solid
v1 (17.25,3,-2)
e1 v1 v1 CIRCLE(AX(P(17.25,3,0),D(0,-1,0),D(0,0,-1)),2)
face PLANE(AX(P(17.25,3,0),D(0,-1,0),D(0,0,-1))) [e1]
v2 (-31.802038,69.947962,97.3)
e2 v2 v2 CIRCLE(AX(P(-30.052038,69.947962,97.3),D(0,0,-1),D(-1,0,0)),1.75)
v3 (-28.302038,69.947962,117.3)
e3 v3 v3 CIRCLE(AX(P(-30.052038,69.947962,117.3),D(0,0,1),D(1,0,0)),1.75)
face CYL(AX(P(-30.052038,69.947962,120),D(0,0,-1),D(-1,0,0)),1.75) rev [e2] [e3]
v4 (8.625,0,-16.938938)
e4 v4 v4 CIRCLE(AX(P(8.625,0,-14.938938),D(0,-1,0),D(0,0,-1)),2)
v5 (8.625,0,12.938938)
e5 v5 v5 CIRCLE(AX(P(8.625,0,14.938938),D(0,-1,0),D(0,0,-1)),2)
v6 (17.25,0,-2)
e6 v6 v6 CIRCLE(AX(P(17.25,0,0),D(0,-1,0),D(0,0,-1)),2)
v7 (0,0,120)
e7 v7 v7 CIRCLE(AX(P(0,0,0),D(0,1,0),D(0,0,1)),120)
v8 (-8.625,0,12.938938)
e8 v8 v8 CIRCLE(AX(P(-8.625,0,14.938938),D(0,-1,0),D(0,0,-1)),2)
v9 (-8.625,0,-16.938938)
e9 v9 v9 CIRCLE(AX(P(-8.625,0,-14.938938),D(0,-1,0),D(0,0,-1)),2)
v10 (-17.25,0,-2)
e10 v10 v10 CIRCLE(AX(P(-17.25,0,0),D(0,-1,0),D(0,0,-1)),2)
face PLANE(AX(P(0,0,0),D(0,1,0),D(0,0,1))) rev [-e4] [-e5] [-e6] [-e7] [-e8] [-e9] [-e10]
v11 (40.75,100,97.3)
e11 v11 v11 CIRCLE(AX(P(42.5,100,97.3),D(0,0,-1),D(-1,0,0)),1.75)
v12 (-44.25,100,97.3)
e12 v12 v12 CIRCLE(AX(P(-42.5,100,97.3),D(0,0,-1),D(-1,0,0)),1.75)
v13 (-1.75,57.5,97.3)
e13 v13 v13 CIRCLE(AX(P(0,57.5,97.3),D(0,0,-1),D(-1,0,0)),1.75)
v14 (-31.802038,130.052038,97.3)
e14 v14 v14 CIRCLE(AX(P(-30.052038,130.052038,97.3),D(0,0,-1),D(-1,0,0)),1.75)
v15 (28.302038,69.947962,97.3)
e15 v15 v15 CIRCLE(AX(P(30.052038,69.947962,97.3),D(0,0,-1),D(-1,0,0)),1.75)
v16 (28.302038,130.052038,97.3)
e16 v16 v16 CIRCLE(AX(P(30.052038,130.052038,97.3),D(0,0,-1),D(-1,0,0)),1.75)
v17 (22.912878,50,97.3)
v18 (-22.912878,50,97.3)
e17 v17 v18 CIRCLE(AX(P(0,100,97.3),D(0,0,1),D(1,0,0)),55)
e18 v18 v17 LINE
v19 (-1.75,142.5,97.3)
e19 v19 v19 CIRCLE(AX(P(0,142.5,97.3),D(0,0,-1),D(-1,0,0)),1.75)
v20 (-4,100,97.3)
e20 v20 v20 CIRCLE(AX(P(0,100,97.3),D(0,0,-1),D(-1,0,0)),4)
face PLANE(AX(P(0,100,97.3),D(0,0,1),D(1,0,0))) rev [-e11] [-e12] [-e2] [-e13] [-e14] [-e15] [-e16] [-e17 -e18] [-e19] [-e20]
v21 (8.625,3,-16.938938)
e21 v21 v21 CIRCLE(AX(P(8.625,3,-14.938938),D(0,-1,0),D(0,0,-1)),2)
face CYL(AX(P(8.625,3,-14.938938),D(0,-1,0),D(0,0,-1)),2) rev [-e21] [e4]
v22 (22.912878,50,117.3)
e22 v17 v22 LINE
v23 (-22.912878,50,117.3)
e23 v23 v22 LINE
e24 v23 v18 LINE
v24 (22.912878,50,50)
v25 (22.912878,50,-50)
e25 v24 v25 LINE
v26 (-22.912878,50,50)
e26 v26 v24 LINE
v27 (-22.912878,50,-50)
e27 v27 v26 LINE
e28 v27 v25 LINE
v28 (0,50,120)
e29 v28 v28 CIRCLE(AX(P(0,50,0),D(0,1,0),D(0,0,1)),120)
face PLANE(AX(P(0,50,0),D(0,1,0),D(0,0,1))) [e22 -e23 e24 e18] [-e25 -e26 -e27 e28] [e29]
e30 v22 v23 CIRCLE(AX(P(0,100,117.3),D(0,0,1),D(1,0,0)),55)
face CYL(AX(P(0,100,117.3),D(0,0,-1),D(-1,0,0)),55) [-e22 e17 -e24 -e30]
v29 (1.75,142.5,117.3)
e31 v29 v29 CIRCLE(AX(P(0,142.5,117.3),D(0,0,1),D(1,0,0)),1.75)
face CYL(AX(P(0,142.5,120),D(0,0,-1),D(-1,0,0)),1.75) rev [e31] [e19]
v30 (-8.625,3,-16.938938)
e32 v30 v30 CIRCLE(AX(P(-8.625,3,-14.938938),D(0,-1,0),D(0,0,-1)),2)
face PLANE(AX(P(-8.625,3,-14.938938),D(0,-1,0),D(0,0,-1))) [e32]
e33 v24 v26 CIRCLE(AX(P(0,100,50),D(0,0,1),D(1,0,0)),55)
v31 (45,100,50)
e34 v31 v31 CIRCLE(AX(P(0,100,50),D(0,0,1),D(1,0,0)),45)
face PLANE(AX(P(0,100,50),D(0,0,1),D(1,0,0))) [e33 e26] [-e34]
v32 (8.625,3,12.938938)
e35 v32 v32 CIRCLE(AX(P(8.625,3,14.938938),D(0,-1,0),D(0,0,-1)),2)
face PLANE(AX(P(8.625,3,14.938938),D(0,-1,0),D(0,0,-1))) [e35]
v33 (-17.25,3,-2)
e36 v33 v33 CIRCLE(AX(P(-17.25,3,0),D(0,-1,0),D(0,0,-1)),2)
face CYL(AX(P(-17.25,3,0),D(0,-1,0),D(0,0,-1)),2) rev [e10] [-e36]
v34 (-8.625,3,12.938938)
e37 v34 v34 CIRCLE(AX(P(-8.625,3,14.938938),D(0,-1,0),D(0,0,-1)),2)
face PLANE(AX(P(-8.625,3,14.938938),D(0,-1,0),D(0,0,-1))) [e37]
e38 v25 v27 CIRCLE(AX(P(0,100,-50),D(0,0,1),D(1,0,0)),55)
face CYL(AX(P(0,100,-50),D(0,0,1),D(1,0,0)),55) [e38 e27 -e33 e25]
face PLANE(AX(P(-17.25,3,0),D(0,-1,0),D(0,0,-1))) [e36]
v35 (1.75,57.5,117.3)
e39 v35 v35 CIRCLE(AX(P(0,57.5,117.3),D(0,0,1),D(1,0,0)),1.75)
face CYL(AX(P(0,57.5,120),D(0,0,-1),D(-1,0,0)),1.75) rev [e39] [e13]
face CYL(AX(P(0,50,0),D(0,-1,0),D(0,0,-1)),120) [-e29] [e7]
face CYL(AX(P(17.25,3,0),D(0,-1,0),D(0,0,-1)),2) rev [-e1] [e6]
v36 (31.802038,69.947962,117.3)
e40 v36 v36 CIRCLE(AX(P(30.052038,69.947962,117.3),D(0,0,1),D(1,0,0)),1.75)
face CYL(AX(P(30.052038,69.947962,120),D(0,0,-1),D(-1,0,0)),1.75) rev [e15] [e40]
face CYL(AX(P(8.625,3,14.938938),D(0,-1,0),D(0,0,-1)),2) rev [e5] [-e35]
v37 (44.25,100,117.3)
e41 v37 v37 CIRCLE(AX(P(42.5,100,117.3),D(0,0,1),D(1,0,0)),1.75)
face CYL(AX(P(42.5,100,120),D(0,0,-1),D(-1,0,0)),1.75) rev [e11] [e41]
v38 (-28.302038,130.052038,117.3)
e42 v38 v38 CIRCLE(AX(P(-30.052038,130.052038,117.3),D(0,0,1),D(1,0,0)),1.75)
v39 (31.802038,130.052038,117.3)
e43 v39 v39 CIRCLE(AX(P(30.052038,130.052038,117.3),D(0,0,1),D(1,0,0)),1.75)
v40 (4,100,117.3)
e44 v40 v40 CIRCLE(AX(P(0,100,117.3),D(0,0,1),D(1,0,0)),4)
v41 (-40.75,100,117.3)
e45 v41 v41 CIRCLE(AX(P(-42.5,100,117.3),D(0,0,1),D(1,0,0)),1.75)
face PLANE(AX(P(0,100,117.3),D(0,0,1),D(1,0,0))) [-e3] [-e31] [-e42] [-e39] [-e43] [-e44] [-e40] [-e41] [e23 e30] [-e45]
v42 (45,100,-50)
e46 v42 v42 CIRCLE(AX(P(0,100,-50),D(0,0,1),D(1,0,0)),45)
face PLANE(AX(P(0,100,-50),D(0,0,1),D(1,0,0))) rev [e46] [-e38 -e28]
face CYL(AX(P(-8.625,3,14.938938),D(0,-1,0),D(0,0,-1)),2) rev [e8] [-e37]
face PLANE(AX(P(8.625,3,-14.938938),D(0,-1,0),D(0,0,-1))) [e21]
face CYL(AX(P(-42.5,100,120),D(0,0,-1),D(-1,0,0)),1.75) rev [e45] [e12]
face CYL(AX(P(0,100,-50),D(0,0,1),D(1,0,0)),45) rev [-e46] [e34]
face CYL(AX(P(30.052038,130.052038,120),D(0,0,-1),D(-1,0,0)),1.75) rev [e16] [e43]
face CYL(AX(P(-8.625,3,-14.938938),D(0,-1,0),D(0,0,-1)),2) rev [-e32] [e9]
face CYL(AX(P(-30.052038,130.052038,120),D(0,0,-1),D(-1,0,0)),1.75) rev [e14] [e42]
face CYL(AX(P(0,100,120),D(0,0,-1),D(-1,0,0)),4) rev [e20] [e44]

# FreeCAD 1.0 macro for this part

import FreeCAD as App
import Part
import Sketcher
from FreeCAD import Vector

doc = App.newDocument("Part")
body = doc.addObject("PartDesign::Body", "Body")

# Sketch on XZ plane
sketch1 = body.newObject("Sketcher::SketchObject", "Sketch")
sketch1.AttachmentSupport = (doc.getObject("XZ_Plane"), [""])
sketch1.MapMode = "FlatFace"
sketch1.addGeometry(Part.Circle(Vector(0, 0, 0), Vector(0, 0, 1), 120), False)
sketch1.addConstraint([
    Sketcher.Constraint("Coincident", 0, 3, -1, 1),
    Sketcher.Constraint("Diameter", 0, 240.0),
])
pad1 = body.newObject("PartDesign::Pad", "Pad")
pad1.Profile = sketch1
pad1.Length = 50
pad1.Reversed = True

# Sketch on XY plane
sketch2 = body.newObject("Sketcher::SketchObject", "Sketch001")
sketch2.AttachmentSupport = (doc.getObject("XY_Plane"), [""])
sketch2.MapMode = "FlatFace"
sketch2.addGeometry([
    Part.Circle(Vector(0, 100, 0), Vector(0, 0, 1), 55),
    Part.Circle(Vector(0, 100, 0), Vector(0, 0, 1), 45),
], False)
sketch2.addConstraint([
    Sketcher.Constraint("Coincident", 1, 3, 0, 3),
    Sketcher.Constraint("PointOnObject", 0, 3, -2),
    Sketcher.Constraint("Diameter", 0, 110.0),
    Sketcher.Constraint("Diameter", 1, 90.0),
    Sketcher.Constraint("DistanceY", -1, 1, 0, 3, 100.0),
])
pad2 = body.newObject("PartDesign::Pad", "Pad001")
pad2.Profile = sketch2
pad2.Type = "TwoLengths"
pad2.Length = 50
pad2.Length2 = 50

# Sketch on XZ plane
sketch3 = body.newObject("Sketcher::SketchObject", "Sketch002")
sketch3.AttachmentSupport = (doc.getObject("XZ_Plane"), [""])
sketch3.MapMode = "FlatFace"
sketch3.addGeometry([
    Part.Circle(Vector(17.2, 0, 0), Vector(0, 0, 1), 2),  # 0
    Part.Circle(Vector(8.6, -14.9, 0), Vector(0, 0, 1), 2),  # 1
    Part.Circle(Vector(-8.6, -14.9, 0), Vector(0, 0, 1), 2),  # 2
    Part.Circle(Vector(-17.2, 0, 0), Vector(0, 0, 1), 2),  # 3
    Part.Circle(Vector(-8.6, 14.9, 0), Vector(0, 0, 1), 2),  # 4
    Part.Circle(Vector(8.6, 14.9, 0), Vector(0, 0, 1), 2),  # 5
], False)
sketch3.addConstraint([
    Sketcher.Constraint("Equal", 0, 1),
    Sketcher.Constraint("Equal", 1, 2),
    Sketcher.Constraint("Equal", 2, 3),
    Sketcher.Constraint("Equal", 3, 4),
    Sketcher.Constraint("Equal", 4, 5),
    Sketcher.Constraint("Symmetric", 0, 3, 3, 3, -1, 1),
    Sketcher.Constraint("Symmetric", 1, 3, 4, 3, -1, 1),
    Sketcher.Constraint("Symmetric", 2, 3, 5, 3, -1, 1),
    Sketcher.Constraint("Symmetric", 1, 3, 2, 3, -2),
    Sketcher.Constraint("PointOnObject", 0, 3, -1),
    Sketcher.Constraint("Diameter", 0, 4.0),
    Sketcher.Constraint("DistanceX", 3, 3, 0, 3, 34.5),
    Sketcher.Constraint("DistanceX", 2, 3, 1, 3, 17.25),
    Sketcher.Constraint("DistanceY", 1, 3, -1, 1, 14.938938),
])
pocket1 = body.newObject("PartDesign::Pocket", "Pocket")
pocket1.Profile = sketch3
pocket1.Length = 3

# Sketch on XY plane
sketch4 = body.newObject("Sketcher::SketchObject", "Sketch003")
sketch4.AttachmentSupport = (doc.getObject("XY_Plane"), [""])
sketch4.MapMode = "FlatFace"
sketch4.AttachmentOffset = App.Placement(Vector(0, 0, 97.3), App.Rotation())
sketch4.addGeometry(Part.Circle(Vector(0, 100, 0), Vector(0, 0, 1), 55), False)
sketch4.addConstraint([
    Sketcher.Constraint("PointOnObject", 0, 3, -2),
    Sketcher.Constraint("Diameter", 0, 110.0),
    Sketcher.Constraint("DistanceY", -1, 1, 0, 3, 100.0),
])
pad3 = body.newObject("PartDesign::Pad", "Pad002")
pad3.Profile = sketch4
pad3.Length = 20

# Sketch on XY plane
sketch5 = body.newObject("Sketcher::SketchObject", "Sketch004")
sketch5.AttachmentSupport = (doc.getObject("XY_Plane"), [""])
sketch5.MapMode = "FlatFace"
sketch5.AttachmentOffset = App.Placement(Vector(0, 0, 97.3), App.Rotation())
sketch5.addGeometry([
    Part.Circle(Vector(-42.5, 100, 0), Vector(0, 0, 1), 1.8),  # 0
    Part.Circle(Vector(-30.1, 69.9, 0), Vector(0, 0, 1), 1.8),  # 1
    Part.Circle(Vector(0, 57.5, 0), Vector(0, 0, 1), 1.8),  # 2
    Part.Circle(Vector(30.1, 69.9, 0), Vector(0, 0, 1), 1.8),  # 3
    Part.Circle(Vector(42.5, 100, 0), Vector(0, 0, 1), 1.8),  # 4
    Part.Circle(Vector(30.1, 130.1, 0), Vector(0, 0, 1), 1.8),  # 5
    Part.Circle(Vector(0, 142.5, 0), Vector(0, 0, 1), 1.8),  # 6
    Part.Circle(Vector(-30.1, 130.1, 0), Vector(0, 0, 1), 1.8),  # 7
    Part.Circle(Vector(0, 100, 0), Vector(0, 0, 1), 4),  # 8
], False)
sketch5.addConstraint([
    Sketcher.Constraint("Equal", 0, 1),
    Sketcher.Constraint("Equal", 1, 2),
    Sketcher.Constraint("Equal", 2, 3),
    Sketcher.Constraint("Equal", 3, 4),
    Sketcher.Constraint("Equal", 4, 5),
    Sketcher.Constraint("Equal", 5, 6),
    Sketcher.Constraint("Equal", 6, 7),
    Sketcher.Constraint("Symmetric", 1, 3, 3, 3, -2),
    Sketcher.Constraint("Symmetric", 0, 3, 4, 3, -2),
    Sketcher.Constraint("Symmetric", 5, 3, 7, 3, -2),
    Sketcher.Constraint("PointOnObject", 2, 3, -2),
    Sketcher.Constraint("PointOnObject", 6, 3, -2),
    Sketcher.Constraint("PointOnObject", 8, 3, -2),
    Sketcher.Constraint("Horizontal", 4, 3, 8, 3),
    Sketcher.Constraint("Vertical", 3, 3, 5, 3),
    Sketcher.Constraint("Diameter", 8, 8.0),
    Sketcher.Constraint("Diameter", 0, 3.5),
    Sketcher.Constraint("DistanceY", -1, 1, 0, 3, 100.0),
    Sketcher.Constraint("DistanceX", 0, 3, 4, 3, 85.0),
    Sketcher.Constraint("DistanceY", -1, 1, 2, 3, 57.5),
    Sketcher.Constraint("DistanceY", -1, 1, 6, 3, 142.5),
    Sketcher.Constraint("DistanceX", 1, 3, -1, 1, 30.052038),
    Sketcher.Constraint("DistanceY", -1, 1, 1, 3, 69.947962),
    Sketcher.Constraint("DistanceY", -1, 1, 5, 3, 130.052038),
])
pocket2 = body.newObject("PartDesign::Pocket", "Pocket001")
pocket2.Profile = sketch5
pocket2.Type = "ThroughAll"
pocket2.Reversed = True

doc.recompute()
